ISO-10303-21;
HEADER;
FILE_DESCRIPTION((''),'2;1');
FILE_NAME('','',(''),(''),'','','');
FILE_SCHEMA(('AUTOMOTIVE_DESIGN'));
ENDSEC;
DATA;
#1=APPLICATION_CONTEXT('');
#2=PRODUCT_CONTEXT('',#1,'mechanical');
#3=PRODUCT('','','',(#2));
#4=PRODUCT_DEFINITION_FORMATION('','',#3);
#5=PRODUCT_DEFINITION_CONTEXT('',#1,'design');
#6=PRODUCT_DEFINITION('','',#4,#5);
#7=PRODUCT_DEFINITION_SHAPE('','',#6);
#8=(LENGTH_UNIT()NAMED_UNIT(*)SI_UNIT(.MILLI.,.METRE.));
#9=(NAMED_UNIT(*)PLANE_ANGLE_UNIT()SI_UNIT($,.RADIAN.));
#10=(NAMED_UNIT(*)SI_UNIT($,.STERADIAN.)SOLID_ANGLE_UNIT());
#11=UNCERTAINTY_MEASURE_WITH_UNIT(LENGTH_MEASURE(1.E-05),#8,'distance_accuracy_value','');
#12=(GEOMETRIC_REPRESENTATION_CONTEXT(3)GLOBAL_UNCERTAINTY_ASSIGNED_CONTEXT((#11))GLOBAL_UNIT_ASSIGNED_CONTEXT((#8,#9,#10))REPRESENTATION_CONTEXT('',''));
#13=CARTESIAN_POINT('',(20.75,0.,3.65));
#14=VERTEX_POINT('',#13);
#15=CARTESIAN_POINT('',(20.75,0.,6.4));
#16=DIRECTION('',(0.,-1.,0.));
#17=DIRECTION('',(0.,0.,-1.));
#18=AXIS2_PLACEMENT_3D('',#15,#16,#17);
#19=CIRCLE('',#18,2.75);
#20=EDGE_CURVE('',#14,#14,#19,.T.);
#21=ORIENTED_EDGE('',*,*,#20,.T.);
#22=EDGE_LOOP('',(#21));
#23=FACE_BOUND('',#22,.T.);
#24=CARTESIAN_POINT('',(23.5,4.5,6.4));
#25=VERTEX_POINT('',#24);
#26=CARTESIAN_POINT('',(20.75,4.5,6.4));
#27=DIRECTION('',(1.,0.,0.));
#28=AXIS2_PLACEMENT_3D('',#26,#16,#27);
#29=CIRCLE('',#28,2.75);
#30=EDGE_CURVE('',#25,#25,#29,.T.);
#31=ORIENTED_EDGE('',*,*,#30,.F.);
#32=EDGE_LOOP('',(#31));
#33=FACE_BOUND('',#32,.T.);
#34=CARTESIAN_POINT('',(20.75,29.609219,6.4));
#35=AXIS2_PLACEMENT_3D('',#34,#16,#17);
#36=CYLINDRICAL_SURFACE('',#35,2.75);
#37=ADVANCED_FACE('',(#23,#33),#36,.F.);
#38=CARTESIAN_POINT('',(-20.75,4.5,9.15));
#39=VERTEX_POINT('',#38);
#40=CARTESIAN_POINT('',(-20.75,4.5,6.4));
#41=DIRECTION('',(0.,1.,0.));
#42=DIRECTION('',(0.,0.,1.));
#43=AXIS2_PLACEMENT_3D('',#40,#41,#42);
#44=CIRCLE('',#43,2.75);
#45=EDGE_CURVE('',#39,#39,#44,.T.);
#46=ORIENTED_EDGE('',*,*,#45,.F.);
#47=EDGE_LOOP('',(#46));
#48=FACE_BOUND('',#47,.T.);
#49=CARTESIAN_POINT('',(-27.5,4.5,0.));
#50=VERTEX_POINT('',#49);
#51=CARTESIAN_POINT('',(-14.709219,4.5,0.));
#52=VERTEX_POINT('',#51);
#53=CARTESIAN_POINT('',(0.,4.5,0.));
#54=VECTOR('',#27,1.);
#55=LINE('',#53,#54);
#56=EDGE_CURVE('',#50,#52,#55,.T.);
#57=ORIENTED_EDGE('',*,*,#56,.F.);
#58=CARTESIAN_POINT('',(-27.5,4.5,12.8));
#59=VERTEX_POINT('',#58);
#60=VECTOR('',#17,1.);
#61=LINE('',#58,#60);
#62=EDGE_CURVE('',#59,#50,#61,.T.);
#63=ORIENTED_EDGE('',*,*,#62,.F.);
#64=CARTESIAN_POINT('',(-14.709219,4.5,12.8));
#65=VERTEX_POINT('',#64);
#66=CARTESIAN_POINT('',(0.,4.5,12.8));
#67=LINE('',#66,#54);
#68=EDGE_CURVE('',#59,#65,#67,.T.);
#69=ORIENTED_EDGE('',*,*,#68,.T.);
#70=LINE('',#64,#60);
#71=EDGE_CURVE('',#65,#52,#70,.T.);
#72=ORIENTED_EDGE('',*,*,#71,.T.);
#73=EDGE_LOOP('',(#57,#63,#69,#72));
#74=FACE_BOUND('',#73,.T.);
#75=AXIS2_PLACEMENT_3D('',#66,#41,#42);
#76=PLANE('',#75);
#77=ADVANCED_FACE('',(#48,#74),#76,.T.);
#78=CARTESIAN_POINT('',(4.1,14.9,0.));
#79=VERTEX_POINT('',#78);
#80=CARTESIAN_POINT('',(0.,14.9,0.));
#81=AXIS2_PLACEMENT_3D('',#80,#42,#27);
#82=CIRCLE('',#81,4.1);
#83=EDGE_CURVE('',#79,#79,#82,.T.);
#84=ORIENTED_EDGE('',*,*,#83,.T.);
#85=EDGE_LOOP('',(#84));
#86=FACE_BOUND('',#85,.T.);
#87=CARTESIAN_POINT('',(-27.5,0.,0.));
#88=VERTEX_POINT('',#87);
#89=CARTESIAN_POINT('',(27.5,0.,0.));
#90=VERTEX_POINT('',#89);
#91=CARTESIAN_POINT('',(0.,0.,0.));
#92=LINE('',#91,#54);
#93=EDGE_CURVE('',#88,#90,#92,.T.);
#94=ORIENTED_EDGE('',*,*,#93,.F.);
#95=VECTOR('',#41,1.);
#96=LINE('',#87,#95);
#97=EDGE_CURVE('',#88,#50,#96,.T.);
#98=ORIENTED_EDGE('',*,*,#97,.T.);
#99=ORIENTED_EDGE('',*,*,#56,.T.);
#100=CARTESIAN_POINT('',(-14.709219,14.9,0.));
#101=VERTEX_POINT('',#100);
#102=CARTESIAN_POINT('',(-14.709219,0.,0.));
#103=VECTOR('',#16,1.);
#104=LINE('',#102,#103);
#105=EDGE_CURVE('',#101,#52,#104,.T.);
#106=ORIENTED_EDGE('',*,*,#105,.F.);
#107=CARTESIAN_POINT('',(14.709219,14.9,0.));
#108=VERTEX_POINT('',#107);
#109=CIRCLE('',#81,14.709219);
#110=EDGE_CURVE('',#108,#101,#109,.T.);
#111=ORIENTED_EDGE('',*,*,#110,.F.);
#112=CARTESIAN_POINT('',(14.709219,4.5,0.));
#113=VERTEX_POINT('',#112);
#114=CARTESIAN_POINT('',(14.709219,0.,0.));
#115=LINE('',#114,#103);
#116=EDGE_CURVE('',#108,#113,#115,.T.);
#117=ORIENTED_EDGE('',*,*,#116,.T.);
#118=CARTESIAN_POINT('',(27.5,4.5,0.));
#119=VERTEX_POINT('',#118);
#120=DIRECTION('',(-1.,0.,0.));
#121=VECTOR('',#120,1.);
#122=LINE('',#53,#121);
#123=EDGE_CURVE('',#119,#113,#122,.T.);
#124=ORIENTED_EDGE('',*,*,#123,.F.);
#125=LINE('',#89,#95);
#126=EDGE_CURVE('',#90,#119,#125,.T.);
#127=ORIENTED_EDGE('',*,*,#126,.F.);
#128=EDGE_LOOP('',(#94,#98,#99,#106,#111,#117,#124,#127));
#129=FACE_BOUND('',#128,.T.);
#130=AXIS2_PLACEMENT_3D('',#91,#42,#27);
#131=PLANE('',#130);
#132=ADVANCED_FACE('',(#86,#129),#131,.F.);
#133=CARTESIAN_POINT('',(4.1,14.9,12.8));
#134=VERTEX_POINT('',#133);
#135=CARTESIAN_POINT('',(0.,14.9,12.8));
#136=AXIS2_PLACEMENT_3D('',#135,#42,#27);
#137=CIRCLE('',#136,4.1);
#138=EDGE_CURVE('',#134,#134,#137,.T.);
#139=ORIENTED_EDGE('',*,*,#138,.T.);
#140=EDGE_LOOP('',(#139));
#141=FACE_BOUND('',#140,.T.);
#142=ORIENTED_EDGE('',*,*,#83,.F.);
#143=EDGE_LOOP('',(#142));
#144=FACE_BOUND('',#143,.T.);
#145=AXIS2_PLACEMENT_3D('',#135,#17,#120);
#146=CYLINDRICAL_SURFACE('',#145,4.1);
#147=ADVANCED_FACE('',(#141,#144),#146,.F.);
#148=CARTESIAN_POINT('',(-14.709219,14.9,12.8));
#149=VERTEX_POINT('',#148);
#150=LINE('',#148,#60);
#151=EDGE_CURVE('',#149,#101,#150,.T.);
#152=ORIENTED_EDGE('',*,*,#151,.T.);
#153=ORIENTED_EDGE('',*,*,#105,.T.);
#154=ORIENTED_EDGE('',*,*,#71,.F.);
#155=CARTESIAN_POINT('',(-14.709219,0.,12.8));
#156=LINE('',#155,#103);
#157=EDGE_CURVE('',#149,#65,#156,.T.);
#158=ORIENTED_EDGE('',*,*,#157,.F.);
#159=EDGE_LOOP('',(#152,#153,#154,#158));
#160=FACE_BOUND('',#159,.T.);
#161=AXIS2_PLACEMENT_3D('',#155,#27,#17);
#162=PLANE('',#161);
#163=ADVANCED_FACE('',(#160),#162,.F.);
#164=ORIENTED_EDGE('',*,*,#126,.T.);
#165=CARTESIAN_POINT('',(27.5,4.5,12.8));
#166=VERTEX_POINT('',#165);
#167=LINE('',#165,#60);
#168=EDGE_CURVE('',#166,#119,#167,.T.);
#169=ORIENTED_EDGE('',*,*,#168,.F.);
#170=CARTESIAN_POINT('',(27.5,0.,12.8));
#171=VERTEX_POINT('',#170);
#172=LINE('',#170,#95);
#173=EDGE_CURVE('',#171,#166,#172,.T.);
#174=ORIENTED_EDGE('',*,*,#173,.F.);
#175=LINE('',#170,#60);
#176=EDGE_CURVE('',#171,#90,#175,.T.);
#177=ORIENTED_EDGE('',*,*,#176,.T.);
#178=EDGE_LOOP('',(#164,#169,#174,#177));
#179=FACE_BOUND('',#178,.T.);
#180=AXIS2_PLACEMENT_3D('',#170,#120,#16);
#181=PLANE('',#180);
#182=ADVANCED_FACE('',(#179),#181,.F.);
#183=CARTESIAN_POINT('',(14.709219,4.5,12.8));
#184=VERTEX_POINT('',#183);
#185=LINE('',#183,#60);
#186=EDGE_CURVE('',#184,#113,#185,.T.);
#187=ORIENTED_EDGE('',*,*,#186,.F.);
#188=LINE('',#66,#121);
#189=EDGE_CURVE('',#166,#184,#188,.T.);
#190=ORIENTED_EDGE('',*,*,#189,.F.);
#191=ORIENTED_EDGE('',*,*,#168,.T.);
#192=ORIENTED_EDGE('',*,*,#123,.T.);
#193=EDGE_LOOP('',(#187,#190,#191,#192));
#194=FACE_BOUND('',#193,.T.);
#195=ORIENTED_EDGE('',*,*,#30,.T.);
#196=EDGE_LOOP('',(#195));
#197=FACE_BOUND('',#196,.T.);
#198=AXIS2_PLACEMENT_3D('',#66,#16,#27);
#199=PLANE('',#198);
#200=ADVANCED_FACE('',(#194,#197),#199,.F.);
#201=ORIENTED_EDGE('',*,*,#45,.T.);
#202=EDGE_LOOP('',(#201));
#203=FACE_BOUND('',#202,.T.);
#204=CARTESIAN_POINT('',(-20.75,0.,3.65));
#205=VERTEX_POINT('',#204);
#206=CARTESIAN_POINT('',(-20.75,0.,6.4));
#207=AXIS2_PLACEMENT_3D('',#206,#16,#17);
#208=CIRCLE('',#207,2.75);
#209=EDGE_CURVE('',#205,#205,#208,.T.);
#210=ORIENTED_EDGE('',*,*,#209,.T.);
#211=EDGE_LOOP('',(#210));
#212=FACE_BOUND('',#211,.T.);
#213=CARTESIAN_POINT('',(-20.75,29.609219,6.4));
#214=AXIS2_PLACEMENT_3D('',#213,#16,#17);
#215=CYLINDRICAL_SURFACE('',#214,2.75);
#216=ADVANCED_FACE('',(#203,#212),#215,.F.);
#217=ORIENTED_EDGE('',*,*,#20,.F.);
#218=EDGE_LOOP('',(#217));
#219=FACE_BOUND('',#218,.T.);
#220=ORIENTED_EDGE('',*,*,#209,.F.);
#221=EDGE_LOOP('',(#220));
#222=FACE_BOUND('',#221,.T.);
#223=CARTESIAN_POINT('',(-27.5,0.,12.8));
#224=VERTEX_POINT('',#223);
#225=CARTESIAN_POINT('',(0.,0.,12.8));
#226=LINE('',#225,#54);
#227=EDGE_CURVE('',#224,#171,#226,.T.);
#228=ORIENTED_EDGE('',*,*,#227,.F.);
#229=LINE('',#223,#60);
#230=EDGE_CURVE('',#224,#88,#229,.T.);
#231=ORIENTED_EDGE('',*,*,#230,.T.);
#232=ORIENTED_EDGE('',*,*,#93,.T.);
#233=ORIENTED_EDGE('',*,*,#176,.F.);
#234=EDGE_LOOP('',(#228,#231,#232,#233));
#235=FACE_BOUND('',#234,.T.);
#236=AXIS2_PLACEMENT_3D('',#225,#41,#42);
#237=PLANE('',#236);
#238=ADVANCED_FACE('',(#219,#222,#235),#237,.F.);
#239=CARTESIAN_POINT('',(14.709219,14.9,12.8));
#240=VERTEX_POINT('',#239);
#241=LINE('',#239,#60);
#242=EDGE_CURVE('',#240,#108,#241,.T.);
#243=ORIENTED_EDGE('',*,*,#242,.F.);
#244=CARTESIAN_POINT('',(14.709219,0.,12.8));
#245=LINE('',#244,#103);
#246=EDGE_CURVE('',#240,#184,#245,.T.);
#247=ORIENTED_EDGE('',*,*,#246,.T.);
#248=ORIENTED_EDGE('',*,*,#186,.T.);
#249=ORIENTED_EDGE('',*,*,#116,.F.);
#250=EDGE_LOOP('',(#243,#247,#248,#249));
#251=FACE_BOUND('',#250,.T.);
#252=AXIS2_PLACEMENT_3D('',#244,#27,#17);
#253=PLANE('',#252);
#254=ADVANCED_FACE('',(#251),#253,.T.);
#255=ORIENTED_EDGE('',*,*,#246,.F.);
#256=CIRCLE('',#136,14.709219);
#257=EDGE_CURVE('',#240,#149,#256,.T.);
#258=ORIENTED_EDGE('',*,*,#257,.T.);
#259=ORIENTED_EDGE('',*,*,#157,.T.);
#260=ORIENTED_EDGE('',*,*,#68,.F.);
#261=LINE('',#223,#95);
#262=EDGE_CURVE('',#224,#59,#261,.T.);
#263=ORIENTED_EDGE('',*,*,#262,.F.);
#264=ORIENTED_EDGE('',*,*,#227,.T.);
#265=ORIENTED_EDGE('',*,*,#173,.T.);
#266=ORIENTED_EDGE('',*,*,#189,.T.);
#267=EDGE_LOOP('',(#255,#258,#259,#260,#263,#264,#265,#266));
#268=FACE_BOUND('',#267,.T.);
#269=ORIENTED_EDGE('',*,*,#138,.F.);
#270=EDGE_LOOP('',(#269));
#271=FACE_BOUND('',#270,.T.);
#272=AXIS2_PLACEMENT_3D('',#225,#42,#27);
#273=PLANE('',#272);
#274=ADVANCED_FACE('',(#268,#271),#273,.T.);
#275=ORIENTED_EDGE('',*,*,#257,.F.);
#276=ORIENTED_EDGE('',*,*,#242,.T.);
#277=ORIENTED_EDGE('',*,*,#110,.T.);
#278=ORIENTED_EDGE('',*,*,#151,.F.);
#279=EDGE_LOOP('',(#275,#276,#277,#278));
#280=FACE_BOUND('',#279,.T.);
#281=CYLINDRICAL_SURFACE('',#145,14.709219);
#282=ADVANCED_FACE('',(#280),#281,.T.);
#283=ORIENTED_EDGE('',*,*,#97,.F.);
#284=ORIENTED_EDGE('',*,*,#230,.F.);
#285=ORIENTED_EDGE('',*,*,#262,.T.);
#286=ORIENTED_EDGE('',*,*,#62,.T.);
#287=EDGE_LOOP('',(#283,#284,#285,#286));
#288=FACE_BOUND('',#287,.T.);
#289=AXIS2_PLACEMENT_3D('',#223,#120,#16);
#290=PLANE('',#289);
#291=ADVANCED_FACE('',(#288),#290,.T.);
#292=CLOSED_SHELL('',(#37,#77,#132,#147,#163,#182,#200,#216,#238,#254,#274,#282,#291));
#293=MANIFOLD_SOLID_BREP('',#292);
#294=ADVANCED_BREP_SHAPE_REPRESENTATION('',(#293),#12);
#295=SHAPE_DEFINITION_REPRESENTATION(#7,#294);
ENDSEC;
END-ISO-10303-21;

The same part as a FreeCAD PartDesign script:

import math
import FreeCAD as App
import Part
import Sketcher

doc = App.newDocument("Part")
body = doc.addObject("PartDesign::Body", "Body")

# Sketch on XY plane
sketch1 = body.newObject("Sketcher::SketchObject", "Sketch")
sketch1.AttachmentSupport = (doc.getObject("XY_Plane"), [""])
sketch1.MapMode = "FlatFace"
sketch1.addGeometry([
    Part.LineSegment(App.Vector(-27.5, 4.5, 0), App.Vector(-27.5, 0, 0)),  # 0
    Part.LineSegment(App.Vector(-27.5, 0, 0), App.Vector(27.5, 0, 0)),  # 1
    Part.LineSegment(App.Vector(27.5, 0, 0), App.Vector(27.5, 4.5, 0)),  # 2
    Part.LineSegment(App.Vector(27.5, 4.5, 0), App.Vector(14.7, 4.5, 0)),  # 3
    Part.LineSegment(App.Vector(14.7, 4.5, 0), App.Vector(14.7, 14.9, 0)),  # 4
    Part.ArcOfCircle(Part.Circle(App.Vector(0, 14.9, 0), App.Vector(0, 0, 1), 14.7), math.radians(0), math.radians(180)),  # 5
    Part.LineSegment(App.Vector(-14.7, 14.9, 0), App.Vector(-14.7, 4.5, 0)),  # 6
    Part.LineSegment(App.Vector(-14.7, 4.5, 0), App.Vector(-27.5, 4.5, 0)),  # 7
    Part.Circle(App.Vector(0, 14.9, 0), App.Vector(0, 0, 1), 4.1),  # 8
], False)
sketch1.addConstraint([
    Sketcher.Constraint("Coincident", 0, 2, 1, 1),
    Sketcher.Constraint("Coincident", 1, 2, 2, 1),
    Sketcher.Constraint("Coincident", 2, 2, 3, 1),
    Sketcher.Constraint("Coincident", 3, 2, 4, 1),
    Sketcher.Constraint("Tangent", 4, 2, 5, 1),
    Sketcher.Constraint("Tangent", 5, 2, 6, 1),
    Sketcher.Constraint("Coincident", 6, 2, 7, 1),
    Sketcher.Constraint("Coincident", 7, 2, 0, 1),
    Sketcher.Constraint("Vertical", 0),
    Sketcher.Constraint("Horizontal", 1),
    Sketcher.Constraint("Vertical", 2),
    Sketcher.Constraint("Horizontal", 3),
    Sketcher.Constraint("Vertical", 4),
    Sketcher.Constraint("Vertical", 6),
    Sketcher.Constraint("Horizontal", 7),
    Sketcher.Constraint("Coincident", 8, 3, 5, 3),
    Sketcher.Constraint("Symmetric", 0, 2, 1, 2, -1, 1),
    Sketcher.Constraint("Symmetric", 3, 2, 6, 2, -2),
    Sketcher.Constraint("Diameter", 8, 8.2),
    Sketcher.Constraint("DistanceX", 1, 1, 1, 2, 55.0),
    Sketcher.Constraint("DistanceY", 0, 2, 0, 1, 4.5),
    Sketcher.Constraint("DistanceY", 4, 1, 4, 2, 10.4),
    Sketcher.Constraint("Radius", 5, 14.709219),
])
pad1 = body.newObject("PartDesign::Pad", "Pad")
pad1.Profile = sketch1
pad1.Length = 12.8

# Sketch on XZ plane
sketch2 = body.newObject("Sketcher::SketchObject", "Sketch001")
sketch2.AttachmentSupport = (doc.getObject("XZ_Plane"), [""])
sketch2.MapMode = "FlatFace"
sketch2.addGeometry([
    Part.Circle(App.Vector(-20.8, 6.4, 0), App.Vector(0, 0, 1), 2.8),
    Part.Circle(App.Vector(20.8, 6.4, 0), App.Vector(0, 0, 1), 2.8),
], False)
sketch2.addConstraint([
    Sketcher.Constraint("Equal", 0, 1),
    Sketcher.Constraint("Symmetric", 0, 3, 1, 3, -2),
    Sketcher.Constraint("Diameter", 0, 5.5),
    Sketcher.Constraint("DistanceY", -1, 1, 0, 3, 6.4),
    Sketcher.Constraint("DistanceX", 0, 3, 1, 3, 41.5),
])
pocket1 = body.newObject("PartDesign::Pocket", "Pocket")
pocket1.Profile = sketch2
pocket1.Type = "ThroughAll"

doc.recompute()
